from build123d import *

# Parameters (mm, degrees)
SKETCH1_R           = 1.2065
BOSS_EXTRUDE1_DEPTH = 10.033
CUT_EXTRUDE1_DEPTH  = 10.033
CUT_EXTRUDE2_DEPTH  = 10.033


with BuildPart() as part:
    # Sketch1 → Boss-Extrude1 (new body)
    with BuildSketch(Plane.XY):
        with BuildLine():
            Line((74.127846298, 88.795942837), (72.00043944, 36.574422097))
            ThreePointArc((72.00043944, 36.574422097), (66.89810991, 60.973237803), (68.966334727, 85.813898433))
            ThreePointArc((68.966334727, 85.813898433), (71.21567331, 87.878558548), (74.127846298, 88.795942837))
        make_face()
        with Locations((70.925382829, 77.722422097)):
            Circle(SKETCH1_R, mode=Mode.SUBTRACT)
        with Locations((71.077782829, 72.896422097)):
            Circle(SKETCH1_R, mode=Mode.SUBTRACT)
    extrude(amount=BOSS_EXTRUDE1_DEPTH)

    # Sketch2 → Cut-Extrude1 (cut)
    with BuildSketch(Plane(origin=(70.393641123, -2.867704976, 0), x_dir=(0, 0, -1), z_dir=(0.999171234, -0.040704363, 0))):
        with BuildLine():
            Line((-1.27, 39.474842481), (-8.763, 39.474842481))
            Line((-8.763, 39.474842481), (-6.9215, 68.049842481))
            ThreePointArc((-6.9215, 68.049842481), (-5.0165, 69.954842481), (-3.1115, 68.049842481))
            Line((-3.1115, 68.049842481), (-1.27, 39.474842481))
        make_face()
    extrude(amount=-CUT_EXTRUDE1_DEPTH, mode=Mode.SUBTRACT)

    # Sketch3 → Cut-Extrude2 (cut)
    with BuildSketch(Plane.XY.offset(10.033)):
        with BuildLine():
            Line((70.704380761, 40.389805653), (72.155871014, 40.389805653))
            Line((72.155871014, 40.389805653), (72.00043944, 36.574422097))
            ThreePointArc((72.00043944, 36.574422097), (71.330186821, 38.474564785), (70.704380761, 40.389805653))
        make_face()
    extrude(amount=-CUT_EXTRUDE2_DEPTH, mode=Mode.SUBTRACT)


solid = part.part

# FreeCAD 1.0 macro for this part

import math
import FreeCAD as App
import Part
import Sketcher
Q = App.Units.Quantity

doc = App.newDocument("Part")
params = doc.addObject("Spreadsheet::Sheet", "Params")
for row, (alias, value) in enumerate([
    ("sketch1_diameter", "0.095 in"),
    ("sketch1_radius", "0.277 in"),
    ("sketch1_radius2", "3.405 in"),
    ("pad1_length", "0.395 in"),
    ("sketch2_radius", "0.075 in"),
    ("sketch2_width", "0.295 in"),
    ("pocket1_length", "0.395 in"),
    ("sketch3_radius", "3.4049999 in"),
    ("sketch3_height", "1.17 in"),
    ("pocket2_length", "0.395 in"),
], start=1):
    params.set(f"A{row}", alias)
    params.set(f"B{row}", "=" + value)
    params.setAlias(f"B{row}", alias)

body = doc.addObject("PartDesign::Body", "Body")

# Sketch on XY plane
sketch1 = body.newObject("Sketcher::SketchObject", "Sketch")
sketch1.AttachmentSupport = (doc.getObject("XY_Plane"), [""])
sketch1.MapMode = "FlatFace"
sketch1.addGeometry(Part.LineSegment(App.Vector(72, 36.6, 0), App.Vector(74.1, 88.8, 0)), False)
sketch1.addGeometry(Part.ArcOfCircle(Part.Circle(App.Vector(74.7, 81.8, 0), App.Vector(0, 0, 1), 7), math.radians(95), math.radians(145)), False)
sketch1.addGeometry(Part.ArcOfCircle(Part.Circle(App.Vector(153.2, 66.3, 0), App.Vector(0, 0, 1), 86.5), math.radians(167), math.radians(200)), False)
sketch1.addGeometry(Part.Circle(App.Vector(71.1, 72.9, 0), App.Vector(0, 0, 1), 1.2), False)
sketch1.addGeometry(Part.Circle(App.Vector(70.9, 77.7, 0), App.Vector(0, 0, 1), 1.2), False)
sketch1.addConstraint(Sketcher.Constraint("Coincident", 0, 2, 1, 1))
sketch1.addConstraint(Sketcher.Constraint("Coincident", 1, 2, 2, 1))
sketch1.addConstraint(Sketcher.Constraint("Coincident", 2, 2, 0, 1))
sketch1.addConstraint(Sketcher.Constraint("Equal", 3, 4))
sketch1.addConstraint(Sketcher.Constraint("Diameter", 3, Q("0.095 in")))
sketch1.addConstraint(Sketcher.Constraint("Radius", 1, Q("0.277 in")))
sketch1.addConstraint(Sketcher.Constraint("Radius", 2, Q("3.405 in")))
sketch1.addConstraint(Sketcher.Constraint("DistanceX", 1, 3, 2, 3, Q("3.09 in")))
sketch1.addConstraint(Sketcher.Constraint("DistanceY", 2, 3, 1, 3, Q("0.61 in")))
sketch1.addConstraint(Sketcher.Constraint("DistanceY", 3, 3, 1, 3, Q("0.35 in")))
sketch1.addConstraint(Sketcher.Constraint("DistanceY", 3, 3, 4, 3, Q("0.19 in")))
sketch1.addConstraint(Sketcher.Constraint("DistanceX", 4, 3, 1, 3, Q("0.15 in")))
sketch1.addConstraint(Sketcher.Constraint("DistanceY", 2, 2, 3, 3, Q("1.43 in")))
sketch1.addConstraint(Sketcher.Constraint("DistanceX", 3, 3, 1, 3, Q("0.144 in")))
sketch1.addConstraint(Sketcher.Constraint("DistanceY", -1, 1, 1, 2, Q("3.3784999 in")))
sketch1.addConstraint(Sketcher.Constraint("DistanceX", -1, 1, 2, 2, Q("72.000439 mm")))
sketch1.addConstraint(Sketcher.Constraint("DistanceY", 1, 3, 0, 2, Q("7.009521 mm")))
sketch1.setExpression("Constraints[4]", "Params.sketch1_diameter")
sketch1.setExpression("Constraints[5]", "Params.sketch1_radius")
sketch1.setExpression("Constraints[6]", "Params.sketch1_radius2")
pad1 = body.newObject("PartDesign::Pad", "Pad")
pad1.Profile = sketch1
pad1.setExpression("Length", "Params.pad1_length")

# Sketch on an angled plane
sketch2 = body.newObject("Sketcher::SketchObject", "Sketch001")
sketch2.Placement = App.Placement(App.Vector(70.393641, -2.867705, 0), App.Rotation(App.Vector(0, 0, -1), App.Vector(0.040704363, 0.999171234, 0), App.Vector(0.999171234, -0.040704363, 0), "ZXY"))
sketch2.addGeometry(Part.LineSegment(App.Vector(-8.8, 39.5, 0), App.Vector(-1.3, 39.5, 0)), False)
sketch2.addGeometry(Part.LineSegment(App.Vector(-1.3, 39.5, 0), App.Vector(-3.1, 68, 0)), False)
sketch2.addGeometry(Part.ArcOfCircle(Part.Circle(App.Vector(-5, 68, 0), App.Vector(0, 0, 1), 1.9), math.radians(0), math.radians(180)), False)
sketch2.addGeometry(Part.LineSegment(App.Vector(-6.9, 68, 0), App.Vector(-8.8, 39.5, 0)), False)
sketch2.addConstraint(Sketcher.Constraint("Coincident", 0, 2, 1, 1))
sketch2.addConstraint(Sketcher.Constraint("Coincident", 1, 2, 2, 1))
sketch2.addConstraint(Sketcher.Constraint("Coincident", 2, 2, 3, 1))
sketch2.addConstraint(Sketcher.Constraint("Coincident", 3, 2, 0, 1))
sketch2.addConstraint(Sketcher.Constraint("Horizontal", 0))
sketch2.addConstraint(Sketcher.Constraint("Horizontal", 2, 3, 1, 2))
sketch2.addConstraint(Sketcher.Constraint("Horizontal", 1, 2, 2, 2))
sketch2.addConstraint(Sketcher.Constraint("Equal", 1, 3))
sketch2.addConstraint(Sketcher.Constraint("Radius", 2, Q("0.075 in")))
sketch2.addConstraint(Sketcher.Constraint("DistanceX", 0, 1, 0, 2, Q("0.295 in")))
sketch2.addConstraint(Sketcher.Constraint("DistanceX", 0, 2, -1, 1, Q("0.05 in")))
sketch2.addConstraint(Sketcher.Constraint("DistanceY", 0, 2, 2, 3, Q("1.125 in")))
sketch2.addConstraint(Sketcher.Constraint("DistanceY", -1, 1, 2, 3, Q("68.049842 mm")))
sketch2.setExpression("Constraints[8]", "Params.sketch2_radius")
sketch2.setExpression("Constraints[9]", "Params.sketch2_width")
pocket1 = body.newObject("PartDesign::Pocket", "Pocket")
pocket1.Profile = sketch2
pocket1.setExpression("Length", "Params.pocket1_length")

# Sketch on XY plane
sketch3 = body.newObject("Sketcher::SketchObject", "Sketch002")
sketch3.AttachmentSupport = (doc.getObject("XY_Plane"), [""])
sketch3.MapMode = "FlatFace"
sketch3.AttachmentOffset = App.Placement(App.Vector(0, 0, 0.395 * 25.4), App.Rotation())
sketch3.addGeometry(Part.LineSegment(App.Vector(72.2, 40.4, 0), App.Vector(70.7, 40.4, 0)), False)
sketch3.addGeometry(Part.ArcOfCircle(Part.Circle(App.Vector(153.2, 66.3, 0), App.Vector(0, 0, 1), 86.5), math.radians(-162.57), math.radians(-159.9)), False)
sketch3.addGeometry(Part.LineSegment(App.Vector(72, 36.6, 0), App.Vector(72.2, 40.4, 0)), False)
sketch3.addConstraint(Sketcher.Constraint("Coincident", 0, 2, 1, 1))
sketch3.addConstraint(Sketcher.Constraint("Coincident", 1, 2, 2, 1))
sketch3.addConstraint(Sketcher.Constraint("Coincident", 2, 2, 0, 1))
sketch3.addConstraint(Sketcher.Constraint("Horizontal", 0))
sketch3.addConstraint(Sketcher.Constraint("Radius", 1, Q("3.4049999 in")))
sketch3.addConstraint(Sketcher.Constraint("DistanceY", 1, 2, 1, 3, Q("1.17 in")))
sketch3.addConstraint(Sketcher.Constraint("DistanceX", 0, 2, 0, 1, Q("1.45149 mm")))
sketch3.addConstraint(Sketcher.Constraint("DistanceX", 0, 2, 1, 3, Q("82.517 mm")))
sketch3.addConstraint(Sketcher.Constraint("DistanceX", -1, 1, 1, 3, Q("153.221381 mm")))
sketch3.addConstraint(Sketcher.Constraint("DistanceY", -1, 1, 1, 3, Q("66.292422 mm")))
sketch3.setExpression("Constraints[4]", "Params.sketch3_radius")
sketch3.setExpression("Constraints[5]", "Params.sketch3_height")
pocket2 = body.newObject("PartDesign::Pocket", "Pocket001")
pocket2.Profile = sketch3
pocket2.setExpression("Length", "Params.pocket2_length")

doc.recompute()
